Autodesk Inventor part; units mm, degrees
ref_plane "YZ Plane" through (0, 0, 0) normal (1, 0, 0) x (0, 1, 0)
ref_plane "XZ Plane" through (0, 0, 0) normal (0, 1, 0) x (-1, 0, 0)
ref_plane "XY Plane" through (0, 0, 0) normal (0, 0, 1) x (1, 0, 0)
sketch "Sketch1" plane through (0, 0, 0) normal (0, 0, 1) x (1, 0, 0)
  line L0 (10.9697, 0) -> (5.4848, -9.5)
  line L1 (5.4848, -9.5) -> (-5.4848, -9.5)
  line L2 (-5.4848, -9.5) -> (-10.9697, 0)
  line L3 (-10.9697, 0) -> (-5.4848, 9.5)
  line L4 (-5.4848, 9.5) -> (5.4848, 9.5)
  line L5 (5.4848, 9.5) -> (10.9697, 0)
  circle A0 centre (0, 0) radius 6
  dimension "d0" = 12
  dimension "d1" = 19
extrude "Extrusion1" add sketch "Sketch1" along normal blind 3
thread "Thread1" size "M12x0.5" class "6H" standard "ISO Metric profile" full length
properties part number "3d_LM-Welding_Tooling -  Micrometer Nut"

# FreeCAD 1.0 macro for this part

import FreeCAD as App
import Part
import Sketcher
Q = App.Units.Quantity


def add_polygon(sketch, points):
    """Adds a closed chain of lines whose ends are joined by coincident constraints."""
    first, n = sketch.GeometryCount, len(points)
    for a, b in zip(points, points[1:] + points[:1]):
        sketch.addGeometry(Part.LineSegment(App.Vector(*a, 0), App.Vector(*b, 0)), False)
    for i in range(n):
        sketch.addConstraint(Sketcher.Constraint("Coincident", first + i, 2, first + (i + 1) % n, 1))

doc = App.newDocument("Part")
body = doc.addObject("PartDesign::Body", "Body")

# Sketch on XY plane
sketch1 = doc.addObject("Sketcher::SketchObject", "Sketch")
body.addObject(sketch1)
sketch1.AttachmentSupport = (doc.XY_Plane, [""])
sketch1.MapMode = "FlatFace"
add_polygon(sketch1, [(5, -10), (11, 0), (5, 10), (-5, 10), (-11, 0), (-5, -10)])  # lines 0-5
sketch1.addGeometry(Part.Circle(App.Vector(0, 0, 0), App.Vector(0, 0, 1), 6), False)  # 6
sketch1.addConstraint(Sketcher.Constraint("Horizontal", 2))
sketch1.addConstraint(Sketcher.Constraint("Horizontal", 5))
sketch1.addConstraint(Sketcher.Constraint("Coincident", 6, 3, -1, 1))
sketch1.addConstraint(Sketcher.Constraint("Symmetric", 0, 2, 3, 2, -1, 1))
sketch1.addConstraint(Sketcher.Constraint("Symmetric", 1, 2, 4, 2, -1, 1))
sketch1.addConstraint(Sketcher.Constraint("PointOnObject", 0, 2, -1))
sketch1.addConstraint(Sketcher.Constraint("Parallel", 0, 3))
sketch1.addConstraint(Sketcher.Constraint("Vertical", 2, 2, 4, 2))
sketch1.addConstraint(Sketcher.Constraint("Diameter", 6, Q("12 mm")))
sketch1.addConstraint(Sketcher.Constraint("DistanceY", 4, 2, 2, 2, Q("19 mm")))
sketch1.addConstraint(Sketcher.Constraint("Angle", 0, Q("59.9997 deg")))
sketch1.addConstraint(Sketcher.Constraint("DistanceX", 2, 2, 2, 1, Q("10.9696 mm")))
pad1 = doc.addObject("PartDesign::Pad", "Pad")
body.addObject(pad1)
pad1.Profile = sketch1
pad1.Length = 3

doc.recompute()
